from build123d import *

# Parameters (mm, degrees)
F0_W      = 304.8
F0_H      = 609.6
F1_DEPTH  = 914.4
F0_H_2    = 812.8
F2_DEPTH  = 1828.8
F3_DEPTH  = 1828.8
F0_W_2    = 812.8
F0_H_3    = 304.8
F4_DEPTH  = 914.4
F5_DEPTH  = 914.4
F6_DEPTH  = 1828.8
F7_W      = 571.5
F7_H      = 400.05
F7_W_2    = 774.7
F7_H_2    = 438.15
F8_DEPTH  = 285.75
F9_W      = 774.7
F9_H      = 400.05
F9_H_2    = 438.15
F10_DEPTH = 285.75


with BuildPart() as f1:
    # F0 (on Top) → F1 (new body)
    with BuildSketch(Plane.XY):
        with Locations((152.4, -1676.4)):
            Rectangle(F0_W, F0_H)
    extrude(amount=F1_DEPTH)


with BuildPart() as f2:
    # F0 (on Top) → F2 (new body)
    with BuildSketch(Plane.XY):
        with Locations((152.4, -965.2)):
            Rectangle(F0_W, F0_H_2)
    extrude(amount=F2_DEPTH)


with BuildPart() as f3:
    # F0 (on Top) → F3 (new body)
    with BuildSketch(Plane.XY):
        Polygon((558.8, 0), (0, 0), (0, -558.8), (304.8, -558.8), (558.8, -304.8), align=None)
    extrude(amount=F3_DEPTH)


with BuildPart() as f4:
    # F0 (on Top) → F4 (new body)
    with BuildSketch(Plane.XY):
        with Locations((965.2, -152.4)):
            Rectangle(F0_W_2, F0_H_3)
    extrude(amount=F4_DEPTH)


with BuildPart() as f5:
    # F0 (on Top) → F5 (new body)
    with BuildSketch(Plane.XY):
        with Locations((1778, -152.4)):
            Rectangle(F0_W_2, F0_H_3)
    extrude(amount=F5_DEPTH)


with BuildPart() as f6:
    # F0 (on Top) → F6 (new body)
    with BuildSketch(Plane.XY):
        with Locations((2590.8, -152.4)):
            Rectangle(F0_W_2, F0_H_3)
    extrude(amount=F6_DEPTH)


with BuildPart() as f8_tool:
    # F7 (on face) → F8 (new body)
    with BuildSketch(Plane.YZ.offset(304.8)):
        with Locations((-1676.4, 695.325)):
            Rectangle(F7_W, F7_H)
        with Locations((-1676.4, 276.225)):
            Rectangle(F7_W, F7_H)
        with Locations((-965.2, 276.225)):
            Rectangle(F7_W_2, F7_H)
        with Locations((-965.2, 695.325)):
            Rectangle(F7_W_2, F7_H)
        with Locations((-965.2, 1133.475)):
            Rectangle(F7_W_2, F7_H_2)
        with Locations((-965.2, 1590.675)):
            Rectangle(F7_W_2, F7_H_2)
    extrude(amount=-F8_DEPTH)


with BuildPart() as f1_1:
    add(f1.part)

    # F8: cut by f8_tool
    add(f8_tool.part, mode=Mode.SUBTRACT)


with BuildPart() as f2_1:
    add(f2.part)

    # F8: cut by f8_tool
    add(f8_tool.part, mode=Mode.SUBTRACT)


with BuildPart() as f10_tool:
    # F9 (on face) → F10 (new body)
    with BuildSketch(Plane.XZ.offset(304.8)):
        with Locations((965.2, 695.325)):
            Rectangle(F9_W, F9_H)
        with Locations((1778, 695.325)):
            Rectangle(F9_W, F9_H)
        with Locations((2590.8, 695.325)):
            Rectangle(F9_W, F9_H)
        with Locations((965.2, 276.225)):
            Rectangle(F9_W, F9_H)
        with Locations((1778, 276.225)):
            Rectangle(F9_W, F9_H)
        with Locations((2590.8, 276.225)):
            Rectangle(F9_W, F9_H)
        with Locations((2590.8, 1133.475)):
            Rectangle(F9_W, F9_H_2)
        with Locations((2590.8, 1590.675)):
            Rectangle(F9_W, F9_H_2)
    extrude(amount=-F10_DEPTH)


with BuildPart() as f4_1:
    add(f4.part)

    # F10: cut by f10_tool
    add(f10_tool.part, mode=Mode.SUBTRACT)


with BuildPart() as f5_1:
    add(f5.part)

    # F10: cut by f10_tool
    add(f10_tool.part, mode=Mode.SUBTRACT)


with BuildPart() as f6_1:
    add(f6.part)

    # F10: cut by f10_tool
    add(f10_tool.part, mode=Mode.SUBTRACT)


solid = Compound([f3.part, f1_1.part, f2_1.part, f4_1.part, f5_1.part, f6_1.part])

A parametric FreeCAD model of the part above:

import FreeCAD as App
import Part
import Sketcher
from FreeCAD import Vector
Q = App.Units.Quantity

doc = App.newDocument("Part")
body = doc.addObject("PartDesign::Body", "Body")

sketch1 = body.newObject("Sketcher::SketchObject", "Sketch")
sketch1.AttachmentSupport = (doc.getObject("XY_Plane"), [""])
sketch1.MapMode = "FlatFace"
sketch1.addGeometry(Part.LineSegment(Vector(0, -1372, 0), Vector(0, -1981, 0)), False)
sketch1.addGeometry(Part.LineSegment(Vector(0, -1981, 0), Vector(305, -1981, 0)), False)
sketch1.addGeometry(Part.LineSegment(Vector(305, -1981, 0), Vector(305, -1372, 0)), False)
sketch1.addGeometry(Part.LineSegment(Vector(305, -1372, 0), Vector(0, -1372, 0)), False)
sketch1.addConstraint(Sketcher.Constraint("Coincident", 0, 2, 1, 1))
sketch1.addConstraint(Sketcher.Constraint("Coincident", 1, 2, 2, 1))
sketch1.addConstraint(Sketcher.Constraint("Coincident", 2, 2, 3, 1))
sketch1.addConstraint(Sketcher.Constraint("Coincident", 3, 2, 0, 1))
sketch1.addConstraint(Sketcher.Constraint("Vertical", 0))
sketch1.addConstraint(Sketcher.Constraint("Horizontal", 1))
sketch1.addConstraint(Sketcher.Constraint("Vertical", 2))
sketch1.addConstraint(Sketcher.Constraint("Horizontal", 3))
sketch1.addConstraint(Sketcher.Constraint("PointOnObject", 0, 2, -2))
sketch1.addConstraint(Sketcher.Constraint("DistanceX", 1, 1, 1, 2, Q("12 in")))
sketch1.addConstraint(Sketcher.Constraint("DistanceY", 0, 2, 0, 1, Q("24 in")))
sketch1.addConstraint(Sketcher.Constraint("DistanceY", 0, 2, -1, 1, Q("78 in")))
pad1 = body.newObject("PartDesign::Pad", "Pad")
pad1.Profile = sketch1
pad1.Length = Q("36 in")
body2 = doc.addObject("PartDesign::Body", "Body001")

sketch2 = body2.newObject("Sketcher::SketchObject", "Sketch001")
sketch2.AttachmentSupport = (doc.getObject("XY_Plane001"), [""])
sketch2.MapMode = "FlatFace"
sketch2.addGeometry(Part.LineSegment(Vector(0, -559, 0), Vector(0, -1372, 0)), False)
sketch2.addGeometry(Part.LineSegment(Vector(0, -1372, 0), Vector(305, -1372, 0)), False)
sketch2.addGeometry(Part.LineSegment(Vector(305, -1372, 0), Vector(305, -559, 0)), False)
sketch2.addGeometry(Part.LineSegment(Vector(305, -559, 0), Vector(0, -559, 0)), False)
sketch2.addConstraint(Sketcher.Constraint("Coincident", 0, 2, 1, 1))
sketch2.addConstraint(Sketcher.Constraint("Coincident", 1, 2, 2, 1))
sketch2.addConstraint(Sketcher.Constraint("Coincident", 2, 2, 3, 1))
sketch2.addConstraint(Sketcher.Constraint("Coincident", 3, 2, 0, 1))
sketch2.addConstraint(Sketcher.Constraint("Vertical", 0))
sketch2.addConstraint(Sketcher.Constraint("Horizontal", 1))
sketch2.addConstraint(Sketcher.Constraint("Vertical", 2))
sketch2.addConstraint(Sketcher.Constraint("Horizontal", 3))
sketch2.addConstraint(Sketcher.Constraint("PointOnObject", 0, 2, -2))
sketch2.addConstraint(Sketcher.Constraint("DistanceX", 1, 1, 1, 2, Q("12 in")))
sketch2.addConstraint(Sketcher.Constraint("DistanceY", 0, 2, 0, 1, Q("32 in")))
sketch2.addConstraint(Sketcher.Constraint("DistanceY", 0, 2, -1, 1, Q("54 in")))
pad2 = body2.newObject("PartDesign::Pad", "Pad001")
pad2.Profile = sketch2
pad2.Length = Q("72 in")
body3 = doc.addObject("PartDesign::Body", "Body002")

sketch3 = body3.newObject("Sketcher::SketchObject", "Sketch002")
sketch3.AttachmentSupport = (doc.getObject("XY_Plane002"), [""])
sketch3.MapMode = "FlatFace"
sketch3.addGeometry(Part.LineSegment(Vector(559, 0, 0), Vector(0, 0, 0)), False)
sketch3.addGeometry(Part.LineSegment(Vector(0, 0, 0), Vector(0, -559, 0)), False)
sketch3.addGeometry(Part.LineSegment(Vector(0, -559, 0), Vector(305, -559, 0)), False)
sketch3.addGeometry(Part.LineSegment(Vector(305, -559, 0), Vector(559, -305, 0)), False)
sketch3.addGeometry(Part.LineSegment(Vector(559, -305, 0), Vector(559, 0, 0)), False)
sketch3.addConstraint(Sketcher.Constraint("Coincident", 0, 2, 1, 1))
sketch3.addConstraint(Sketcher.Constraint("Coincident", 1, 2, 2, 1))
sketch3.addConstraint(Sketcher.Constraint("Coincident", 2, 2, 3, 1))
sketch3.addConstraint(Sketcher.Constraint("Coincident", 3, 2, 4, 1))
sketch3.addConstraint(Sketcher.Constraint("Coincident", 4, 2, 0, 1))
sketch3.addConstraint(Sketcher.Constraint("Horizontal", 0))
sketch3.addConstraint(Sketcher.Constraint("Vertical", 1))
sketch3.addConstraint(Sketcher.Constraint("Horizontal", 2))
sketch3.addConstraint(Sketcher.Constraint("Vertical", 4))
sketch3.addConstraint(Sketcher.Constraint("Coincident", 0, 2, -1, 1))
sketch3.addConstraint(Sketcher.Constraint("Equal", 0, 1))
sketch3.addConstraint(Sketcher.Constraint("Equal", 2, 4))
sketch3.addConstraint(Sketcher.Constraint("DistanceX", 0, 2, 0, 1, Q("22 in")))
sketch3.addConstraint(Sketcher.Constraint("DistanceX", 2, 1, 2, 2, Q("12 in")))
pad3 = body3.newObject("PartDesign::Pad", "Pad002")
pad3.Profile = sketch3
pad3.Length = Q("72 in")
body4 = doc.addObject("PartDesign::Body", "Body003")

sketch4 = body4.newObject("Sketcher::SketchObject", "Sketch003")
sketch4.AttachmentSupport = (doc.getObject("XY_Plane003"), [""])
sketch4.MapMode = "FlatFace"
sketch4.addGeometry(Part.LineSegment(Vector(559, 0, 0), Vector(559, -305, 0)), False)
sketch4.addGeometry(Part.LineSegment(Vector(559, -305, 0), Vector(1372, -305, 0)), False)
sketch4.addGeometry(Part.LineSegment(Vector(1372, -305, 0), Vector(1372, 0, 0)), False)
sketch4.addGeometry(Part.LineSegment(Vector(1372, 0, 0), Vector(559, 0, 0)), False)
sketch4.addConstraint(Sketcher.Constraint("Coincident", 0, 2, 1, 1))
sketch4.addConstraint(Sketcher.Constraint("Coincident", 1, 2, 2, 1))
sketch4.addConstraint(Sketcher.Constraint("Coincident", 2, 2, 3, 1))
sketch4.addConstraint(Sketcher.Constraint("Coincident", 3, 2, 0, 1))
sketch4.addConstraint(Sketcher.Constraint("Vertical", 0))
sketch4.addConstraint(Sketcher.Constraint("Horizontal", 1))
sketch4.addConstraint(Sketcher.Constraint("Vertical", 2))
sketch4.addConstraint(Sketcher.Constraint("Horizontal", 3))
sketch4.addConstraint(Sketcher.Constraint("PointOnObject", 2, 2, -1))
sketch4.addConstraint(Sketcher.Constraint("DistanceX", 1, 1, 1, 2, Q("32 in")))
sketch4.addConstraint(Sketcher.Constraint("DistanceY", 0, 2, 0, 1, Q("12 in")))
sketch4.addConstraint(Sketcher.Constraint("DistanceX", -1, 1, 0, 2, Q("22 in")))
pad4 = body4.newObject("PartDesign::Pad", "Pad003")
pad4.Profile = sketch4
pad4.Length = Q("36 in")
body5 = doc.addObject("PartDesign::Body", "Body004")

sketch5 = body5.newObject("Sketcher::SketchObject", "Sketch004")
sketch5.AttachmentSupport = (doc.getObject("XY_Plane004"), [""])
sketch5.MapMode = "FlatFace"
sketch5.addGeometry(Part.LineSegment(Vector(1372, 0, 0), Vector(1372, -305, 0)), False)
sketch5.addGeometry(Part.LineSegment(Vector(1372, -305, 0), Vector(2184, -305, 0)), False)
sketch5.addGeometry(Part.LineSegment(Vector(2184, -305, 0), Vector(2184, 0, 0)), False)
sketch5.addGeometry(Part.LineSegment(Vector(2184, 0, 0), Vector(1372, 0, 0)), False)
sketch5.addConstraint(Sketcher.Constraint("Coincident", 0, 2, 1, 1))
sketch5.addConstraint(Sketcher.Constraint("Coincident", 1, 2, 2, 1))
sketch5.addConstraint(Sketcher.Constraint("Coincident", 2, 2, 3, 1))
sketch5.addConstraint(Sketcher.Constraint("Coincident", 3, 2, 0, 1))
sketch5.addConstraint(Sketcher.Constraint("Vertical", 0))
sketch5.addConstraint(Sketcher.Constraint("Horizontal", 1))
sketch5.addConstraint(Sketcher.Constraint("Vertical", 2))
sketch5.addConstraint(Sketcher.Constraint("Horizontal", 3))
sketch5.addConstraint(Sketcher.Constraint("PointOnObject", 2, 2, -1))
sketch5.addConstraint(Sketcher.Constraint("DistanceX", 1, 1, 1, 2, Q("32 in")))
sketch5.addConstraint(Sketcher.Constraint("DistanceY", 0, 2, 0, 1, Q("12 in")))
sketch5.addConstraint(Sketcher.Constraint("DistanceX", -1, 1, 0, 2, Q("54 in")))
pad5 = body5.newObject("PartDesign::Pad", "Pad004")
pad5.Profile = sketch5
pad5.Length = Q("36 in")
body6 = doc.addObject("PartDesign::Body", "Body005")

sketch6 = body6.newObject("Sketcher::SketchObject", "Sketch005")
sketch6.AttachmentSupport = (doc.getObject("XY_Plane005"), [""])
sketch6.MapMode = "FlatFace"
sketch6.addGeometry(Part.LineSegment(Vector(2184, 0, 0), Vector(2184, -305, 0)), False)
sketch6.addGeometry(Part.LineSegment(Vector(2184, -305, 0), Vector(2997, -305, 0)), False)
sketch6.addGeometry(Part.LineSegment(Vector(2997, -305, 0), Vector(2997, 0, 0)), False)
sketch6.addGeometry(Part.LineSegment(Vector(2997, 0, 0), Vector(2184, 0, 0)), False)
sketch6.addConstraint(Sketcher.Constraint("Coincident", 0, 2, 1, 1))
sketch6.addConstraint(Sketcher.Constraint("Coincident", 1, 2, 2, 1))
sketch6.addConstraint(Sketcher.Constraint("Coincident", 2, 2, 3, 1))
sketch6.addConstraint(Sketcher.Constraint("Coincident", 3, 2, 0, 1))
sketch6.addConstraint(Sketcher.Constraint("Vertical", 0))
sketch6.addConstraint(Sketcher.Constraint("Horizontal", 1))
sketch6.addConstraint(Sketcher.Constraint("Vertical", 2))
sketch6.addConstraint(Sketcher.Constraint("Horizontal", 3))
sketch6.addConstraint(Sketcher.Constraint("PointOnObject", 2, 2, -1))
sketch6.addConstraint(Sketcher.Constraint("DistanceX", 1, 1, 1, 2, Q("32 in")))
sketch6.addConstraint(Sketcher.Constraint("DistanceY", 0, 2, 0, 1, Q("12 in")))
sketch6.addConstraint(Sketcher.Constraint("DistanceX", -1, 1, 0, 2, Q("86 in")))
pad6 = body6.newObject("PartDesign::Pad", "Pad005")
pad6.Profile = sketch6
pad6.Length = Q("72 in")
body7 = doc.addObject("PartDesign::Body", "Body006")
body7.AllowCompound = True

sketch7 = body7.newObject("Sketcher::SketchObject", "Sketch006")
sketch7.AttachmentSupport = (doc.getObject("YZ_Plane006"), [""])
sketch7.MapMode = "FlatFace"
sketch7.AttachmentOffset = App.Placement(Vector(0, 0, 12 * 25.4), App.Rotation())
sketch7.addGeometry(Part.LineSegment(Vector(-1962, 895, 0), Vector(-1962, 495, 0)), False)
sketch7.addGeometry(Part.LineSegment(Vector(-1962, 495, 0), Vector(-1391, 495, 0)), False)
sketch7.addGeometry(Part.LineSegment(Vector(-1391, 495, 0), Vector(-1391, 895, 0)), False)
sketch7.addGeometry(Part.LineSegment(Vector(-1391, 895, 0), Vector(-1962, 895, 0)), False)
sketch7.addGeometry(Part.LineSegment(Vector(-1962, 476, 0), Vector(-1962, 76, 0)), False)
sketch7.addGeometry(Part.LineSegment(Vector(-1962, 76, 0), Vector(-1391, 76, 0)), False)
sketch7.addGeometry(Part.LineSegment(Vector(-1391, 76, 0), Vector(-1391, 476, 0)), False)
sketch7.addGeometry(Part.LineSegment(Vector(-1391, 476, 0), Vector(-1962, 476, 0)), False)
sketch7.addGeometry(Part.LineSegment(Vector(-1353, 476, 0), Vector(-1353, 76, 0)), False)
sketch7.addGeometry(Part.LineSegment(Vector(-1353, 76, 0), Vector(-578, 76, 0)), False)
sketch7.addGeometry(Part.LineSegment(Vector(-578, 76, 0), Vector(-578, 476, 0)), False)
sketch7.addGeometry(Part.LineSegment(Vector(-578, 476, 0), Vector(-1353, 476, 0)), False)
sketch7.addGeometry(Part.LineSegment(Vector(-1353, 895, 0), Vector(-1353, 495, 0)), False)
sketch7.addGeometry(Part.LineSegment(Vector(-1353, 495, 0), Vector(-578, 495, 0)), False)
sketch7.addGeometry(Part.LineSegment(Vector(-578, 495, 0), Vector(-578, 895, 0)), False)
sketch7.addGeometry(Part.LineSegment(Vector(-578, 895, 0), Vector(-1353, 895, 0)), False)
sketch7.addGeometry(Part.LineSegment(Vector(-1353, 1353, 0), Vector(-1353, 914, 0)), False)
sketch7.addGeometry(Part.LineSegment(Vector(-1353, 914, 0), Vector(-578, 914, 0)), False)
sketch7.addGeometry(Part.LineSegment(Vector(-578, 914, 0), Vector(-578, 1353, 0)), False)
sketch7.addGeometry(Part.LineSegment(Vector(-578, 1353, 0), Vector(-1353, 1353, 0)), False)
sketch7.addGeometry(Part.LineSegment(Vector(-1353, 1810, 0), Vector(-1353, 1372, 0)), False)
sketch7.addGeometry(Part.LineSegment(Vector(-1353, 1372, 0), Vector(-578, 1372, 0)), False)
sketch7.addGeometry(Part.LineSegment(Vector(-578, 1372, 0), Vector(-578, 1810, 0)), False)
sketch7.addGeometry(Part.LineSegment(Vector(-578, 1810, 0), Vector(-1353, 1810, 0)), False)
sketch7.addConstraint(Sketcher.Constraint("Coincident", 0, 2, 1, 1))
sketch7.addConstraint(Sketcher.Constraint("Coincident", 1, 2, 2, 1))
sketch7.addConstraint(Sketcher.Constraint("Coincident", 2, 2, 3, 1))
sketch7.addConstraint(Sketcher.Constraint("Coincident", 3, 2, 0, 1))
sketch7.addConstraint(Sketcher.Constraint("Coincident", 4, 2, 5, 1))
sketch7.addConstraint(Sketcher.Constraint("Coincident", 5, 2, 6, 1))
sketch7.addConstraint(Sketcher.Constraint("Coincident", 6, 2, 7, 1))
sketch7.addConstraint(Sketcher.Constraint("Coincident", 7, 2, 4, 1))
sketch7.addConstraint(Sketcher.Constraint("Coincident", 8, 2, 9, 1))
sketch7.addConstraint(Sketcher.Constraint("Coincident", 9, 2, 10, 1))
sketch7.addConstraint(Sketcher.Constraint("Coincident", 10, 2, 11, 1))
sketch7.addConstraint(Sketcher.Constraint("Coincident", 11, 2, 8, 1))
sketch7.addConstraint(Sketcher.Constraint("Coincident", 12, 2, 13, 1))
sketch7.addConstraint(Sketcher.Constraint("Coincident", 13, 2, 14, 1))
sketch7.addConstraint(Sketcher.Constraint("Coincident", 14, 2, 15, 1))
sketch7.addConstraint(Sketcher.Constraint("Coincident", 15, 2, 12, 1))
sketch7.addConstraint(Sketcher.Constraint("Coincident", 16, 2, 17, 1))
sketch7.addConstraint(Sketcher.Constraint("Coincident", 17, 2, 18, 1))
sketch7.addConstraint(Sketcher.Constraint("Coincident", 18, 2, 19, 1))
sketch7.addConstraint(Sketcher.Constraint("Coincident", 19, 2, 16, 1))
sketch7.addConstraint(Sketcher.Constraint("Coincident", 20, 2, 21, 1))
sketch7.addConstraint(Sketcher.Constraint("Coincident", 21, 2, 22, 1))
sketch7.addConstraint(Sketcher.Constraint("Coincident", 22, 2, 23, 1))
sketch7.addConstraint(Sketcher.Constraint("Coincident", 23, 2, 20, 1))
sketch7.addConstraint(Sketcher.Constraint("Vertical", 0))
sketch7.addConstraint(Sketcher.Constraint("Horizontal", 1))
sketch7.addConstraint(Sketcher.Constraint("Vertical", 2))
sketch7.addConstraint(Sketcher.Constraint("Horizontal", 3))
sketch7.addConstraint(Sketcher.Constraint("Vertical", 4))
sketch7.addConstraint(Sketcher.Constraint("Horizontal", 5))
sketch7.addConstraint(Sketcher.Constraint("Vertical", 6))
sketch7.addConstraint(Sketcher.Constraint("Horizontal", 7))
sketch7.addConstraint(Sketcher.Constraint("Vertical", 8))
sketch7.addConstraint(Sketcher.Constraint("Horizontal", 9))
sketch7.addConstraint(Sketcher.Constraint("Vertical", 10))
sketch7.addConstraint(Sketcher.Constraint("Horizontal", 11))
sketch7.addConstraint(Sketcher.Constraint("Vertical", 12))
sketch7.addConstraint(Sketcher.Constraint("Horizontal", 13))
sketch7.addConstraint(Sketcher.Constraint("Vertical", 14))
sketch7.addConstraint(Sketcher.Constraint("Horizontal", 15))
sketch7.addConstraint(Sketcher.Constraint("Vertical", 16))
sketch7.addConstraint(Sketcher.Constraint("Horizontal", 17))
sketch7.addConstraint(Sketcher.Constraint("Vertical", 18))
sketch7.addConstraint(Sketcher.Constraint("Horizontal", 19))
sketch7.addConstraint(Sketcher.Constraint("Vertical", 20))
sketch7.addConstraint(Sketcher.Constraint("Horizontal", 21))
sketch7.addConstraint(Sketcher.Constraint("Vertical", 22))
sketch7.addConstraint(Sketcher.Constraint("Horizontal", 23))
sketch7.addConstraint(Sketcher.Constraint("Horizontal", 5, 2, 8, 2))
sketch7.addConstraint(Sketcher.Constraint("Horizontal", 7, 2, 10, 2))
sketch7.addConstraint(Sketcher.Constraint("Horizontal", 1, 2, 12, 2))
sketch7.addConstraint(Sketcher.Constraint("Horizontal", 3, 2, 14, 2))
sketch7.addConstraint(Sketcher.Constraint("Vertical", 3, 2, 4, 2))
sketch7.addConstraint(Sketcher.Constraint("Vertical", 2, 2, 5, 2))
sketch7.addConstraint(Sketcher.Constraint("Vertical", 11, 2, 12, 2))
sketch7.addConstraint(Sketcher.Constraint("Vertical", 10, 2, 13, 2))
sketch7.addConstraint(Sketcher.Constraint("Vertical", 15, 2, 16, 2))
sketch7.addConstraint(Sketcher.Constraint("Vertical", 14, 2, 17, 2))
sketch7.addConstraint(Sketcher.Constraint("Vertical", 19, 2, 20, 2))
sketch7.addConstraint(Sketcher.Constraint("Vertical", 18, 2, 21, 2))
sketch7.addConstraint(Sketcher.Constraint("Equal", 2, 4))
sketch7.addConstraint(Sketcher.Constraint("Equal", 18, 20))
sketch7.addConstraint(Sketcher.Constraint("DistanceX", 1, 1, 1, 2, Q("22.5 in")))
sketch7.addConstraint(Sketcher.Constraint("DistanceX", 9, 1, 9, 2, Q("30.5 in")))
sketch7.addConstraint(Sketcher.Constraint("DistanceY", -1, 1, 4, 2, Q("3 in")))
sketch7.addConstraint(Sketcher.Constraint("DistanceY", -1, 1, 16, 2, Q("36 in")))
sketch7.addConstraint(Sketcher.Constraint("DistanceY", -1, 1, 20, 2, Q("54 in")))
sketch7.addConstraint(Sketcher.Constraint("DistanceX", 4, 2, 8, 2, Q("24 in")))
sketch7.addConstraint(Sketcher.Constraint("DistanceY", 14, 2, 18, 2, Q("18 in")))
sketch7.addConstraint(Sketcher.Constraint("DistanceY", 0, 2, 0, 1, Q("15.75 in")))
sketch7.addConstraint(Sketcher.Constraint("DistanceY", 16, 2, 16, 1, Q("17.25 in")))
sketch7.addConstraint(Sketcher.Constraint("DistanceX", 0, 2, -1, 1, Q("77.25 in")))
pad7 = body7.newObject("PartDesign::Pad", "Pad006")
pad7.Profile = sketch7
pad7.Length = Q("11.25 in")
pad7.Reversed = True
doc.recompute()

body8 = doc.addObject("PartDesign::Body", "Body007")
body8.BaseFeature = body7
boolean = body.newObject("PartDesign::Boolean", "Boolean")
boolean.Type = "Cut"
boolean.addObjects([body8])
doc.recompute()

boolean2 = body2.newObject("PartDesign::Boolean", "Boolean001")
boolean2.Type = "Cut"
boolean2.addObjects([body7])
body9 = doc.addObject("PartDesign::Body", "Body008")
body9.AllowCompound = True

sketch8 = body9.newObject("Sketcher::SketchObject", "Sketch007")
sketch8.AttachmentSupport = (doc.getObject("XZ_Plane008"), [""])
sketch8.MapMode = "FlatFace"
sketch8.AttachmentOffset = App.Placement(Vector(0, 0, 12 * 25.4), App.Rotation())
sketch8.addGeometry(Part.LineSegment(Vector(578, 895, 0), Vector(578, 495, 0)), False)
sketch8.addGeometry(Part.LineSegment(Vector(578, 495, 0), Vector(1353, 495, 0)), False)
sketch8.addGeometry(Part.LineSegment(Vector(1353, 495, 0), Vector(1353, 895, 0)), False)
sketch8.addGeometry(Part.LineSegment(Vector(1353, 895, 0), Vector(578, 895, 0)), False)
sketch8.addGeometry(Part.LineSegment(Vector(1391, 895, 0), Vector(1391, 495, 0)), False)
sketch8.addGeometry(Part.LineSegment(Vector(1391, 495, 0), Vector(2165, 495, 0)), False)
sketch8.addGeometry(Part.LineSegment(Vector(2165, 495, 0), Vector(2165, 895, 0)), False)
sketch8.addGeometry(Part.LineSegment(Vector(2165, 895, 0), Vector(1391, 895, 0)), False)
sketch8.addGeometry(Part.LineSegment(Vector(2203, 895, 0), Vector(2203, 495, 0)), False)
sketch8.addGeometry(Part.LineSegment(Vector(2203, 495, 0), Vector(2978, 495, 0)), False)
sketch8.addGeometry(Part.LineSegment(Vector(2978, 495, 0), Vector(2978, 895, 0)), False)
sketch8.addGeometry(Part.LineSegment(Vector(2978, 895, 0), Vector(2203, 895, 0)), False)
sketch8.addGeometry(Part.LineSegment(Vector(578, 476, 0), Vector(578, 76, 0)), False)
sketch8.addGeometry(Part.LineSegment(Vector(578, 76, 0), Vector(1353, 76, 0)), False)
sketch8.addGeometry(Part.LineSegment(Vector(1353, 76, 0), Vector(1353, 476, 0)), False)
sketch8.addGeometry(Part.LineSegment(Vector(1353, 476, 0), Vector(578, 476, 0)), False)
sketch8.addGeometry(Part.LineSegment(Vector(1391, 476, 0), Vector(1391, 76, 0)), False)
sketch8.addGeometry(Part.LineSegment(Vector(1391, 76, 0), Vector(2165, 76, 0)), False)
sketch8.addGeometry(Part.LineSegment(Vector(2165, 76, 0), Vector(2165, 476, 0)), False)
sketch8.addGeometry(Part.LineSegment(Vector(2165, 476, 0), Vector(1391, 476, 0)), False)
sketch8.addGeometry(Part.LineSegment(Vector(2203, 476, 0), Vector(2203, 76, 0)), False)
sketch8.addGeometry(Part.LineSegment(Vector(2203, 76, 0), Vector(2978, 76, 0)), False)
sketch8.addGeometry(Part.LineSegment(Vector(2978, 76, 0), Vector(2978, 476, 0)), False)
sketch8.addGeometry(Part.LineSegment(Vector(2978, 476, 0), Vector(2203, 476, 0)), False)
sketch8.addGeometry(Part.LineSegment(Vector(2203, 1353, 0), Vector(2203, 914, 0)), False)
sketch8.addGeometry(Part.LineSegment(Vector(2203, 914, 0), Vector(2978, 914, 0)), False)
sketch8.addGeometry(Part.LineSegment(Vector(2978, 914, 0), Vector(2978, 1353, 0)), False)
sketch8.addGeometry(Part.LineSegment(Vector(2978, 1353, 0), Vector(2203, 1353, 0)), False)
sketch8.addGeometry(Part.LineSegment(Vector(2203, 1810, 0), Vector(2203, 1372, 0)), False)
sketch8.addGeometry(Part.LineSegment(Vector(2203, 1372, 0), Vector(2978, 1372, 0)), False)
sketch8.addGeometry(Part.LineSegment(Vector(2978, 1372, 0), Vector(2978, 1810, 0)), False)
sketch8.addGeometry(Part.LineSegment(Vector(2978, 1810, 0), Vector(2203, 1810, 0)), False)
sketch8.addConstraint(Sketcher.Constraint("Coincident", 0, 2, 1, 1))
sketch8.addConstraint(Sketcher.Constraint("Coincident", 1, 2, 2, 1))
sketch8.addConstraint(Sketcher.Constraint("Coincident", 2, 2, 3, 1))
sketch8.addConstraint(Sketcher.Constraint("Coincident", 3, 2, 0, 1))
sketch8.addConstraint(Sketcher.Constraint("Coincident", 4, 2, 5, 1))
sketch8.addConstraint(Sketcher.Constraint("Coincident", 5, 2, 6, 1))
sketch8.addConstraint(Sketcher.Constraint("Coincident", 6, 2, 7, 1))
sketch8.addConstraint(Sketcher.Constraint("Coincident", 7, 2, 4, 1))
sketch8.addConstraint(Sketcher.Constraint("Coincident", 8, 2, 9, 1))
sketch8.addConstraint(Sketcher.Constraint("Coincident", 9, 2, 10, 1))
sketch8.addConstraint(Sketcher.Constraint("Coincident", 10, 2, 11, 1))
sketch8.addConstraint(Sketcher.Constraint("Coincident", 11, 2, 8, 1))
sketch8.addConstraint(Sketcher.Constraint("Coincident", 12, 2, 13, 1))
sketch8.addConstraint(Sketcher.Constraint("Coincident", 13, 2, 14, 1))
sketch8.addConstraint(Sketcher.Constraint("Coincident", 14, 2, 15, 1))
sketch8.addConstraint(Sketcher.Constraint("Coincident", 15, 2, 12, 1))
sketch8.addConstraint(Sketcher.Constraint("Coincident", 16, 2, 17, 1))
sketch8.addConstraint(Sketcher.Constraint("Coincident", 17, 2, 18, 1))
sketch8.addConstraint(Sketcher.Constraint("Coincident", 18, 2, 19, 1))
sketch8.addConstraint(Sketcher.Constraint("Coincident", 19, 2, 16, 1))
sketch8.addConstraint(Sketcher.Constraint("Coincident", 20, 2, 21, 1))
sketch8.addConstraint(Sketcher.Constraint("Coincident", 21, 2, 22, 1))
sketch8.addConstraint(Sketcher.Constraint("Coincident", 22, 2, 23, 1))
sketch8.addConstraint(Sketcher.Constraint("Coincident", 23, 2, 20, 1))
sketch8.addConstraint(Sketcher.Constraint("Coincident", 24, 2, 25, 1))
sketch8.addConstraint(Sketcher.Constraint("Coincident", 25, 2, 26, 1))
sketch8.addConstraint(Sketcher.Constraint("Coincident", 26, 2, 27, 1))
sketch8.addConstraint(Sketcher.Constraint("Coincident", 27, 2, 24, 1))
sketch8.addConstraint(Sketcher.Constraint("Coincident", 28, 2, 29, 1))
sketch8.addConstraint(Sketcher.Constraint("Coincident", 29, 2, 30, 1))
sketch8.addConstraint(Sketcher.Constraint("Coincident", 30, 2, 31, 1))
sketch8.addConstraint(Sketcher.Constraint("Coincident", 31, 2, 28, 1))
sketch8.addConstraint(Sketcher.Constraint("Vertical", 0))
sketch8.addConstraint(Sketcher.Constraint("Horizontal", 1))
sketch8.addConstraint(Sketcher.Constraint("Vertical", 2))
sketch8.addConstraint(Sketcher.Constraint("Horizontal", 3))
sketch8.addConstraint(Sketcher.Constraint("Vertical", 4))
sketch8.addConstraint(Sketcher.Constraint("Horizontal", 5))
sketch8.addConstraint(Sketcher.Constraint("Vertical", 6))
sketch8.addConstraint(Sketcher.Constraint("Horizontal", 7))
sketch8.addConstraint(Sketcher.Constraint("Vertical", 8))
sketch8.addConstraint(Sketcher.Constraint("Horizontal", 9))
sketch8.addConstraint(Sketcher.Constraint("Vertical", 10))
sketch8.addConstraint(Sketcher.Constraint("Horizontal", 11))
sketch8.addConstraint(Sketcher.Constraint("Vertical", 12))
sketch8.addConstraint(Sketcher.Constraint("Horizontal", 13))
sketch8.addConstraint(Sketcher.Constraint("Vertical", 14))
sketch8.addConstraint(Sketcher.Constraint("Horizontal", 15))
sketch8.addConstraint(Sketcher.Constraint("Vertical", 16))
sketch8.addConstraint(Sketcher.Constraint("Horizontal", 17))
sketch8.addConstraint(Sketcher.Constraint("Vertical", 18))
sketch8.addConstraint(Sketcher.Constraint("Horizontal", 19))
sketch8.addConstraint(Sketcher.Constraint("Vertical", 20))
sketch8.addConstraint(Sketcher.Constraint("Horizontal", 21))
sketch8.addConstraint(Sketcher.Constraint("Vertical", 22))
sketch8.addConstraint(Sketcher.Constraint("Horizontal", 23))
sketch8.addConstraint(Sketcher.Constraint("Vertical", 24))
sketch8.addConstraint(Sketcher.Constraint("Horizontal", 25))
sketch8.addConstraint(Sketcher.Constraint("Vertical", 26))
sketch8.addConstraint(Sketcher.Constraint("Horizontal", 27))
sketch8.addConstraint(Sketcher.Constraint("Vertical", 28))
sketch8.addConstraint(Sketcher.Constraint("Horizontal", 29))
sketch8.addConstraint(Sketcher.Constraint("Vertical", 30))
sketch8.addConstraint(Sketcher.Constraint("Horizontal", 31))
sketch8.addConstraint(Sketcher.Constraint("Horizontal", 1, 2, 4, 2))
sketch8.addConstraint(Sketcher.Constraint("Horizontal", 3, 2, 6, 2))
sketch8.addConstraint(Sketcher.Constraint("Horizontal", 5, 2, 8, 2))
sketch8.addConstraint(Sketcher.Constraint("Horizontal", 7, 2, 10, 2))
sketch8.addConstraint(Sketcher.Constraint("Horizontal", 13, 2, 16, 2))
sketch8.addConstraint(Sketcher.Constraint("Horizontal", 15, 2, 18, 2))
sketch8.addConstraint(Sketcher.Constraint("Horizontal", 17, 2, 20, 2))
sketch8.addConstraint(Sketcher.Constraint("Horizontal", 19, 2, 22, 2))
sketch8.addConstraint(Sketcher.Constraint("Vertical", 3, 2, 12, 2))
sketch8.addConstraint(Sketcher.Constraint("Vertical", 2, 2, 13, 2))
sketch8.addConstraint(Sketcher.Constraint("Vertical", 7, 2, 16, 2))
sketch8.addConstraint(Sketcher.Constraint("Vertical", 6, 2, 17, 2))
sketch8.addConstraint(Sketcher.Constraint("Vertical", 11, 2, 20, 2))
sketch8.addConstraint(Sketcher.Constraint("Vertical", 10, 2, 21, 2))
sketch8.addConstraint(Sketcher.Constraint("Vertical", 23, 2, 24, 2))
sketch8.addConstraint(Sketcher.Constraint("Vertical", 22, 2, 25, 2))
sketch8.addConstraint(Sketcher.Constraint("Vertical", 27, 2, 28, 2))
sketch8.addConstraint(Sketcher.Constraint("Vertical", 26, 2, 29, 2))
sketch8.addConstraint(Sketcher.Constraint("Equal", 3, 5))
sketch8.addConstraint(Sketcher.Constraint("Equal", 7, 9))
sketch8.addConstraint(Sketcher.Constraint("Equal", 10, 12))
sketch8.addConstraint(Sketcher.Constraint("Equal", 26, 28))
sketch8.addConstraint(Sketcher.Constraint("DistanceX", 1, 1, 1, 2, Q("30.5 in")))
sketch8.addConstraint(Sketcher.Constraint("DistanceY", -1, 1, 12, 2, Q("3 in")))
sketch8.addConstraint(Sketcher.Constraint("DistanceY", -1, 1, 24, 2, Q("36 in")))
sketch8.addConstraint(Sketcher.Constraint("DistanceY", -1, 1, 28, 2, Q("54 in")))
sketch8.addConstraint(Sketcher.Constraint("DistanceX", 0, 2, 4, 2, Q("32 in")))
sketch8.addConstraint(Sketcher.Constraint("DistanceX", 4, 2, 8, 2, Q("32 in")))
sketch8.addConstraint(Sketcher.Constraint("DistanceY", 10, 2, 26, 2, Q("18 in")))
sketch8.addConstraint(Sketcher.Constraint("DistanceY", 0, 2, 0, 1, Q("15.75 in")))
sketch8.addConstraint(Sketcher.Constraint("DistanceY", 24, 2, 24, 1, Q("17.25 in")))
sketch8.addConstraint(Sketcher.Constraint("DistanceX", -1, 1, 0, 2, Q("22.75 in")))
pad8 = body9.newObject("PartDesign::Pad", "Pad007")
pad8.Profile = sketch8
pad8.Length = Q("11.25 in")
pad8.Reversed = True
doc.recompute()

body10 = doc.addObject("PartDesign::Body", "Body009")
body10.BaseFeature = body9
boolean3 = body4.newObject("PartDesign::Boolean", "Boolean002")
boolean3.Type = "Cut"
boolean3.addObjects([body10])
doc.recompute()

body11 = doc.addObject("PartDesign::Body", "Body010")
body11.BaseFeature = body9
boolean4 = body5.newObject("PartDesign::Boolean", "Boolean003")
boolean4.Type = "Cut"
boolean4.addObjects([body11])
doc.recompute()

boolean5 = body6.newObject("PartDesign::Boolean", "Boolean004")
boolean5.Type = "Cut"
boolean5.addObjects([body9])

doc.recompute()
